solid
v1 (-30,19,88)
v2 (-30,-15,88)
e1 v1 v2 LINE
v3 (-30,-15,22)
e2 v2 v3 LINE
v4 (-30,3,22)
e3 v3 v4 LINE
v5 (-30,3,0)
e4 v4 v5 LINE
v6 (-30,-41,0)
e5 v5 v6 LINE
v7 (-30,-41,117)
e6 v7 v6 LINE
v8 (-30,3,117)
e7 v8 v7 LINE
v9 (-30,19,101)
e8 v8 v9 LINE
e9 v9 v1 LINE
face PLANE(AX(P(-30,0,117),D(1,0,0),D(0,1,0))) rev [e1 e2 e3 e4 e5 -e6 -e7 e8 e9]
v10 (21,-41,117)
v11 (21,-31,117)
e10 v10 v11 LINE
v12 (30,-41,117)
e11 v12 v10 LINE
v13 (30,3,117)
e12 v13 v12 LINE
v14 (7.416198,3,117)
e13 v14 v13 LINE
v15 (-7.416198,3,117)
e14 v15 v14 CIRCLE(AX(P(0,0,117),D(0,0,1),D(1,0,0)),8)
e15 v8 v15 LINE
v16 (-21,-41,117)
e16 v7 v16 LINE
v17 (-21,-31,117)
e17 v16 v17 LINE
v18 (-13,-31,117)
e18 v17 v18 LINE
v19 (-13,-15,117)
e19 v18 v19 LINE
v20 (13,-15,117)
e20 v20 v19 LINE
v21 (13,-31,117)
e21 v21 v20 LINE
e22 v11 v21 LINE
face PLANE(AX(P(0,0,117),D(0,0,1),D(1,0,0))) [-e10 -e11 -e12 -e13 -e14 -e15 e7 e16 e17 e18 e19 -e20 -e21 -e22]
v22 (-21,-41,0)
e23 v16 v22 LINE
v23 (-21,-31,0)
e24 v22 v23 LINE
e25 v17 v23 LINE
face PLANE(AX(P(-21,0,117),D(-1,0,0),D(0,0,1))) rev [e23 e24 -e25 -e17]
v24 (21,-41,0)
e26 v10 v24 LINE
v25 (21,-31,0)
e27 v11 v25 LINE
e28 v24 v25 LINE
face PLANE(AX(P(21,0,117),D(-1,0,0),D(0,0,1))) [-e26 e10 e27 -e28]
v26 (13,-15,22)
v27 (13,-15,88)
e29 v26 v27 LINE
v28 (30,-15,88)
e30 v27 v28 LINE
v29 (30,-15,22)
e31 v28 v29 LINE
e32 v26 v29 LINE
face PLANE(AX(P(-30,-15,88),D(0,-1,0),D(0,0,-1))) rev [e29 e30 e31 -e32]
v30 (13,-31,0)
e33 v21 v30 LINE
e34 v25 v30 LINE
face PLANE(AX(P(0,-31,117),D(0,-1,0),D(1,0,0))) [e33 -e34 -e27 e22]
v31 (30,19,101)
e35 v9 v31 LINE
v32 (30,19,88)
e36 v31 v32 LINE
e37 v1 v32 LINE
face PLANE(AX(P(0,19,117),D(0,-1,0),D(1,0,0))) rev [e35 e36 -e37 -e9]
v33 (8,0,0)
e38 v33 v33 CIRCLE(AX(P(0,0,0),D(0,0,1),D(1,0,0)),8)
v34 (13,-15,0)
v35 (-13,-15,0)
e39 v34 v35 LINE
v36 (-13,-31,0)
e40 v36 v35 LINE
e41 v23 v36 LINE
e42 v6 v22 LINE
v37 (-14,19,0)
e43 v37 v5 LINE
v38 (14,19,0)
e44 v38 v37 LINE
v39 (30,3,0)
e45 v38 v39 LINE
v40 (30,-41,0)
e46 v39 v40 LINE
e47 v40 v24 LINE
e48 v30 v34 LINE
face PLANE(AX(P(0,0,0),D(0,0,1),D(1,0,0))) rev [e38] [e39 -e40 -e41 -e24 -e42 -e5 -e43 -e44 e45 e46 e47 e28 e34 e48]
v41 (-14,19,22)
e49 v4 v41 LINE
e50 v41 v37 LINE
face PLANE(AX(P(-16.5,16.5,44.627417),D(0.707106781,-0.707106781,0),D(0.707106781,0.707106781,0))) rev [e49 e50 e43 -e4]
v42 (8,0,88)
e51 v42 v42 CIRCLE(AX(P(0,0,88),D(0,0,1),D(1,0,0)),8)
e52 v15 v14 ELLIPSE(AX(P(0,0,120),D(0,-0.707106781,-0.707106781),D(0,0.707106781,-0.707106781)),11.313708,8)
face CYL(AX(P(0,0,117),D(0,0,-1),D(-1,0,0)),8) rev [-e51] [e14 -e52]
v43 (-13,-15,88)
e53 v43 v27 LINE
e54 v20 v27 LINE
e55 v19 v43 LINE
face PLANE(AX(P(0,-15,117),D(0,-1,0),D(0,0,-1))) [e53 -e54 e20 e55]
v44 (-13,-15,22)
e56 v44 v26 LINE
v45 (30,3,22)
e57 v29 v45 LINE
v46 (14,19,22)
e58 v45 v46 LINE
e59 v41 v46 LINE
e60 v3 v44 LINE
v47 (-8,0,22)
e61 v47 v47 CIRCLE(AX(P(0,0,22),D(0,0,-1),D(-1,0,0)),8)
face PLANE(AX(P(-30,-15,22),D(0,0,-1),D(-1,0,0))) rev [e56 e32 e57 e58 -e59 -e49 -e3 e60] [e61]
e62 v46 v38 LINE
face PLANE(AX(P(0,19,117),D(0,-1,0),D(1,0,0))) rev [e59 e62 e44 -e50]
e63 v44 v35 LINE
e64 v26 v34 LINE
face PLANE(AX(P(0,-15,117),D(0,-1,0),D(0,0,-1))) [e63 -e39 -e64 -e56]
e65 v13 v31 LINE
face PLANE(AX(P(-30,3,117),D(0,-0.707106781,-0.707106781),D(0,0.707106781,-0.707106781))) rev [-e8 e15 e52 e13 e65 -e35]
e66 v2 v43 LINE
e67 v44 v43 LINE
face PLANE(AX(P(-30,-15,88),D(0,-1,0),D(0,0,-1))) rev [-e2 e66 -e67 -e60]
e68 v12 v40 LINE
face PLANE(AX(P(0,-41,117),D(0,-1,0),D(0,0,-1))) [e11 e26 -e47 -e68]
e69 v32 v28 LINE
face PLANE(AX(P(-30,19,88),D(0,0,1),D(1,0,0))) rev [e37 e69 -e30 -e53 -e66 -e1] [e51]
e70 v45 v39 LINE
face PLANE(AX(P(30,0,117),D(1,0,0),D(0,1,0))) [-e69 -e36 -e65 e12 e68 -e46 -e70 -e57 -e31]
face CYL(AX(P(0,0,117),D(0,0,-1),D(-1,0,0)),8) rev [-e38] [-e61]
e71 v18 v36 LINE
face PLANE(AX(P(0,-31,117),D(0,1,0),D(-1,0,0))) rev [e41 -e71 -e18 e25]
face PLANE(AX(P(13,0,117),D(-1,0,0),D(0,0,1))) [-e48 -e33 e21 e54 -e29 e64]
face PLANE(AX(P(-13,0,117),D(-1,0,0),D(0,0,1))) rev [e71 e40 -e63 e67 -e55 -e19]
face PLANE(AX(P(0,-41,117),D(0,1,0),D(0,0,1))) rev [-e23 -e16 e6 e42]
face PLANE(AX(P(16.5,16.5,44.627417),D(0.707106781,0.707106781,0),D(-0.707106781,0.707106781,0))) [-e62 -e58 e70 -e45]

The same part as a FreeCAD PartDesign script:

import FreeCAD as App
import Part
import Sketcher
Q = App.Units.Quantity


def add_polygon(sketch, points):
    """Adds a closed chain of lines whose ends are joined by coincident constraints."""
    first, n = sketch.GeometryCount, len(points)
    for a, b in zip(points, points[1:] + points[:1]):
        sketch.addGeometry(Part.LineSegment(App.Vector(*a, 0), App.Vector(*b, 0)), False)
    for i in range(n):
        sketch.addConstraint(Sketcher.Constraint("Coincident", first + i, 2, first + (i + 1) % n, 1))

doc = App.newDocument("Part")
body = doc.addObject("PartDesign::Body", "Body")

# Sketch on XY plane
sketch1 = doc.addObject("Sketcher::SketchObject", "Sketch")
body.addObject(sketch1)
sketch1.AttachmentSupport = (doc.XY_Plane, [""])
sketch1.MapMode = "FlatFace"
add_polygon(sketch1, [(30, 19), (-30, 19), (-30, -41), (-21, -41), (-21, -31), (-13, -31), (-13, -15), (13, -15), (13, -31), (21, -31), (21, -41), (30, -41)])  # lines 0-11
sketch1.addGeometry(Part.Circle(App.Vector(0, 0, 0), App.Vector(0, 0, 1), 8), False)  # 12
sketch1.addConstraint(Sketcher.Constraint("Horizontal", 0))
sketch1.addConstraint(Sketcher.Constraint("Vertical", 1))
sketch1.addConstraint(Sketcher.Constraint("Horizontal", 2))
sketch1.addConstraint(Sketcher.Constraint("Vertical", 3))
sketch1.addConstraint(Sketcher.Constraint("Horizontal", 4))
sketch1.addConstraint(Sketcher.Constraint("Vertical", 5))
sketch1.addConstraint(Sketcher.Constraint("Horizontal", 6))
sketch1.addConstraint(Sketcher.Constraint("Vertical", 7))
sketch1.addConstraint(Sketcher.Constraint("Horizontal", 8))
sketch1.addConstraint(Sketcher.Constraint("Vertical", 9))
sketch1.addConstraint(Sketcher.Constraint("Horizontal", 10))
sketch1.addConstraint(Sketcher.Constraint("Vertical", 11))
sketch1.addConstraint(Sketcher.Constraint("Coincident", 12, 3, -1, 1))
sketch1.addConstraint(Sketcher.Constraint("Symmetric", 4, 2, 7, 2, -2))
sketch1.addConstraint(Sketcher.Constraint("Symmetric", 2, 2, 9, 2, -2))
sketch1.addConstraint(Sketcher.Constraint("Equal", 2, 10))
sketch1.addConstraint(Sketcher.Constraint("Equal", 0, 1))
sketch1.addConstraint(Sketcher.Constraint("Diameter", 12, Q("16 mm")))
sketch1.addConstraint(Sketcher.Constraint("DistanceX", 0, 2, 0, 1, Q("60 mm")))
sketch1.addConstraint(Sketcher.Constraint("DistanceX", 2, 1, 2, 2, Q("9 mm")))
sketch1.addConstraint(Sketcher.Constraint("DistanceX", 4, 1, 4, 2, Q("8 mm")))
sketch1.addConstraint(Sketcher.Constraint("DistanceY", 3, 1, 3, 2, Q("10 mm")))
sketch1.addConstraint(Sketcher.Constraint("DistanceY", 5, 1, 5, 2, Q("16 mm")))
sketch1.addConstraint(Sketcher.Constraint("DistanceY", -1, 1, 0, 2, Q("19 mm")))
pad1 = doc.addObject("PartDesign::Pad", "Pad")
body.addObject(pad1)
pad1.Profile = sketch1
pad1.Length = 117

# Sketch on YZ plane
sketch2 = doc.addObject("Sketcher::SketchObject", "Sketch001")
body.addObject(sketch2)
sketch2.AttachmentSupport = (doc.YZ_Plane, [""])
sketch2.MapMode = "FlatFace"
add_polygon(sketch2, [(3, 117), (19, 101), (19, 117)])  # lines 0-2
add_polygon(sketch2, [(19, 88), (-15, 88), (-15, 22), (19, 22)])  # lines 3-6
sketch2.addConstraint(Sketcher.Constraint("Vertical", 1))
sketch2.addConstraint(Sketcher.Constraint("Horizontal", 2))
sketch2.addConstraint(Sketcher.Constraint("Horizontal", 3))
sketch2.addConstraint(Sketcher.Constraint("Vertical", 4))
sketch2.addConstraint(Sketcher.Constraint("Horizontal", 5))
sketch2.addConstraint(Sketcher.Constraint("Vertical", 6))
sketch2.addConstraint(Sketcher.Constraint("Vertical", 1, 2, 5, 2))
sketch2.addConstraint(Sketcher.Constraint("Equal", 2, 1))
sketch2.addConstraint(Sketcher.Constraint("DistanceX", 2, 2, 2, 1, Q("16 mm")))
sketch2.addConstraint(Sketcher.Constraint("DistanceX", 3, 2, 3, 1, Q("34 mm")))
sketch2.addConstraint(Sketcher.Constraint("DistanceY", 4, 2, 4, 1, Q("66 mm")))
sketch2.addConstraint(Sketcher.Constraint("DistanceX", -1, 1, 0, 2, Q("19 mm")))
sketch2.addConstraint(Sketcher.Constraint("DistanceY", -1, 1, 0, 2, Q("101 mm")))
sketch2.addConstraint(Sketcher.Constraint("DistanceY", -1, 1, 3, 2, Q("88 mm")))
pocket1 = doc.addObject("PartDesign::Pocket", "Pocket")
body.addObject(pocket1)
pocket1.Profile = sketch2
pocket1.Type = "ThroughAll"
pocket1.Midplane = True

# Sketch on XY plane
sketch3 = doc.addObject("Sketcher::SketchObject", "Sketch002")
body.addObject(sketch3)
sketch3.AttachmentSupport = (doc.XY_Plane, [""])
sketch3.MapMode = "FlatFace"
add_polygon(sketch3, [(30, 3), (30, 19), (14, 19)])  # lines 0-2
add_polygon(sketch3, [(-30, 3), (-14, 19), (-30, 19)])  # lines 3-5
sketch3.addConstraint(Sketcher.Constraint("Vertical", 0))
sketch3.addConstraint(Sketcher.Constraint("Horizontal", 1))
sketch3.addConstraint(Sketcher.Constraint("Horizontal", 4))
sketch3.addConstraint(Sketcher.Constraint("Vertical", 5))
sketch3.addConstraint(Sketcher.Constraint("Symmetric", 1, 2, 3, 2, -2))
sketch3.addConstraint(Sketcher.Constraint("Symmetric", 2, 2, 5, 2, -2))
sketch3.addConstraint(Sketcher.Constraint("Perpendicular", 2, 3))
sketch3.addConstraint(Sketcher.Constraint("DistanceX", 1, 2, 1, 1, Q("16 mm")))
sketch3.addConstraint(Sketcher.Constraint("DistanceX", -1, 1, 0, 2, Q("30 mm")))
sketch3.addConstraint(Sketcher.Constraint("DistanceY", -1, 1, 0, 2, Q("19 mm")))
pocket2 = doc.addObject("PartDesign::Pocket", "Pocket001")
body.addObject(pocket2)
pocket2.Profile = sketch3
pocket2.Length = 22
pocket2.Reversed = True

doc.recompute()
